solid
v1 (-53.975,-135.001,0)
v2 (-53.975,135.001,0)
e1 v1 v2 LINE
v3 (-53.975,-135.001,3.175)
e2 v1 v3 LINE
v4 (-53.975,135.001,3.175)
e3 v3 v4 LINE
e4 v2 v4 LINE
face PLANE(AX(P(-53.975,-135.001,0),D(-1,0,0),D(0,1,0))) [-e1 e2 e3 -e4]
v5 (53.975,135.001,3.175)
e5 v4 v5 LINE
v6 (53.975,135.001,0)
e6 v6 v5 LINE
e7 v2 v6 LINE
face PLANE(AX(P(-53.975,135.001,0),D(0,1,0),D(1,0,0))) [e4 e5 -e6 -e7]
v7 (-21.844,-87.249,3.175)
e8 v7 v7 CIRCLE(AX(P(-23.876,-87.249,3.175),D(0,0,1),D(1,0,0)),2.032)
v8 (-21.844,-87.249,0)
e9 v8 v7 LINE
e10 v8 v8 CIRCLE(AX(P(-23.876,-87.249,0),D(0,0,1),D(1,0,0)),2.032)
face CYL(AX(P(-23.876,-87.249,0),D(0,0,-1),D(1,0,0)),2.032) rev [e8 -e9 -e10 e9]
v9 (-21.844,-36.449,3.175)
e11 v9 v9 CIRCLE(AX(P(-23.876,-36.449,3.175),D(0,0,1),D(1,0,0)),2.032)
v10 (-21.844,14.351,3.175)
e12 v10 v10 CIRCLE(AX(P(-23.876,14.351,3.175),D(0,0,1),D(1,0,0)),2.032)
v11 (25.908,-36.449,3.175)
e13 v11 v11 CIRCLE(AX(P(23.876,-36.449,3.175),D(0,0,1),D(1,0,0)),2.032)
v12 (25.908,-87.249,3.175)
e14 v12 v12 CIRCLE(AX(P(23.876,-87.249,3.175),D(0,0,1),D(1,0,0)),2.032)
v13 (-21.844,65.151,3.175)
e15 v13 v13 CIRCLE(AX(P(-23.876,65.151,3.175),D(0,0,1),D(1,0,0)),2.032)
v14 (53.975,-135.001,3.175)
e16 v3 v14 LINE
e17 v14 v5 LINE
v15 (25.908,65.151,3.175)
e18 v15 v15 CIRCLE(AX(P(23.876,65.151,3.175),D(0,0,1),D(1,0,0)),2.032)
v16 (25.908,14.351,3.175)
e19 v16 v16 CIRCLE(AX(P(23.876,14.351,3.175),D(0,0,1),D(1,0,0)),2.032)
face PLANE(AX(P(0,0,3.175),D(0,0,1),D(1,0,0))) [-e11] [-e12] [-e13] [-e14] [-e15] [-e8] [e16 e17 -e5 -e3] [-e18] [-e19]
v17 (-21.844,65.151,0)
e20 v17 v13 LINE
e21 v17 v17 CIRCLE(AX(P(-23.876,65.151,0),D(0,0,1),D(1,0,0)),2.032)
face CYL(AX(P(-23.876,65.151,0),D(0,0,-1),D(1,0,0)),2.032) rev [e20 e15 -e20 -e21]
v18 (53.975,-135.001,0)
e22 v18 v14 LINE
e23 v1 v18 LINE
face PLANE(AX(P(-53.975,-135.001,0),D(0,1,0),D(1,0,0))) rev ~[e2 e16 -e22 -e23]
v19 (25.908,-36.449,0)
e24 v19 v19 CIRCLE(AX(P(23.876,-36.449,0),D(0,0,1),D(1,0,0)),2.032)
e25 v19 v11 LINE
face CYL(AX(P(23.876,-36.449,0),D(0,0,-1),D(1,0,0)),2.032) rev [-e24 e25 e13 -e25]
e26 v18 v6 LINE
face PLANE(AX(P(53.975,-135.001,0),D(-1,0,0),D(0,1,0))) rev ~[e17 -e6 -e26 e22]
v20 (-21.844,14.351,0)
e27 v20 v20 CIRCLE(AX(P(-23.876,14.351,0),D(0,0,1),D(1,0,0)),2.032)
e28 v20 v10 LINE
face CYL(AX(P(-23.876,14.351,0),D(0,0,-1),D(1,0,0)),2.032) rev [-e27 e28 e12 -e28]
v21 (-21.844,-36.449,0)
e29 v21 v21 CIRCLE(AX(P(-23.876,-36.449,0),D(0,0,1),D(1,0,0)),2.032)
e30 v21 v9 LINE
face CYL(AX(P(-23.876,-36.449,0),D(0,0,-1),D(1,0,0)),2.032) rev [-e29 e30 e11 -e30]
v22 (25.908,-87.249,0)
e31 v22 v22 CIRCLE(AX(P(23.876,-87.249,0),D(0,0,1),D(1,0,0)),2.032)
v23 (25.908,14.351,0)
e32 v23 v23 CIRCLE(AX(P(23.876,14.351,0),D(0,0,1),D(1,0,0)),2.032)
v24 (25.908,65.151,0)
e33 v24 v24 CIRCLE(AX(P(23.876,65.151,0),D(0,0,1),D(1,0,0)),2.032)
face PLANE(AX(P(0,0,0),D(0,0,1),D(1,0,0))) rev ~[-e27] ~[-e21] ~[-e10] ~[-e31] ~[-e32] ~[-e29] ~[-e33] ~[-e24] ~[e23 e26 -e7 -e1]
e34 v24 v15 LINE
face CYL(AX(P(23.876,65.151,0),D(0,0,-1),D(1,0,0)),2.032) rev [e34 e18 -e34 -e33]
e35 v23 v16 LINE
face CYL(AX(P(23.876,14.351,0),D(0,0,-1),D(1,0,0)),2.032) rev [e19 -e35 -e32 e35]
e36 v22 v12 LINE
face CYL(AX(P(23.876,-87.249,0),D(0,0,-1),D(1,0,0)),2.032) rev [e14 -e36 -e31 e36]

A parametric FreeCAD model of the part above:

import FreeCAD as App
import Part
import Sketcher
from FreeCAD import Vector
Q = App.Units.Quantity


def add_polygon(sketch, points):
    """Adds a closed chain of lines whose ends are joined by coincident constraints."""
    first, n = sketch.GeometryCount, len(points)
    for a, b in zip(points, points[1:] + points[:1]):
        sketch.addGeometry(Part.LineSegment(App.Vector(*a, 0), App.Vector(*b, 0)), False)
    for i in range(n):
        sketch.addConstraint(Sketcher.Constraint("Coincident", first + i, 2, first + (i + 1) % n, 1))

doc = App.newDocument("Part")
body = doc.addObject("PartDesign::Body", "Body")

sketch1 = body.newObject("Sketcher::SketchObject", "Sketch")
sketch1.AttachmentSupport = (doc.getObject("XY_Plane"), [""])
sketch1.MapMode = "FlatFace"
add_polygon(sketch1, [(-54, 135), (-54, -135), (54, -135), (54, 135)])
sketch1.addGeometry(Part.Circle(Vector(-23.9, -87.2, 0), Vector(0, 0, 1), 2), False)
sketch1.addGeometry(Part.Circle(Vector(-23.9, -36.4, 0), Vector(0, 0, 1), 2), False)
sketch1.addGeometry(Part.Circle(Vector(23.9, -87.2, 0), Vector(0, 0, 1), 2), False)
sketch1.addGeometry(Part.Circle(Vector(23.9, -36.4, 0), Vector(0, 0, 1), 2), False)
sketch1.addGeometry(Part.Circle(Vector(-23.9, 14.4, 0), Vector(0, 0, 1), 2), False)
sketch1.addGeometry(Part.Circle(Vector(-23.9, 65.2, 0), Vector(0, 0, 1), 2), False)
sketch1.addGeometry(Part.Circle(Vector(23.9, 14.4, 0), Vector(0, 0, 1), 2), False)
sketch1.addGeometry(Part.Circle(Vector(23.9, 65.2, 0), Vector(0, 0, 1), 2), False)
sketch1.addConstraint(Sketcher.Constraint("Vertical", 0))
sketch1.addConstraint(Sketcher.Constraint("Horizontal", 1))
sketch1.addConstraint(Sketcher.Constraint("Vertical", 2))
sketch1.addConstraint(Sketcher.Constraint("Horizontal", 3))
sketch1.addConstraint(Sketcher.Constraint("Equal", 4, 5))
sketch1.addConstraint(Sketcher.Constraint("Equal", 5, 6))
sketch1.addConstraint(Sketcher.Constraint("Equal", 6, 7))
sketch1.addConstraint(Sketcher.Constraint("Equal", 7, 8))
sketch1.addConstraint(Sketcher.Constraint("Equal", 8, 9))
sketch1.addConstraint(Sketcher.Constraint("Equal", 9, 10))
sketch1.addConstraint(Sketcher.Constraint("Equal", 10, 11))
sketch1.addConstraint(Sketcher.Constraint("Symmetric", 0, 2, 2, 2, -1, 1))
sketch1.addConstraint(Sketcher.Constraint("Symmetric", 4, 3, 6, 3, -2))
sketch1.addConstraint(Sketcher.Constraint("Symmetric", 5, 3, 7, 3, -2))
sketch1.addConstraint(Sketcher.Constraint("Symmetric", 8, 3, 10, 3, -2))
sketch1.addConstraint(Sketcher.Constraint("Symmetric", 9, 3, 11, 3, -2))
sketch1.addConstraint(Sketcher.Constraint("Vertical", 4, 3, 5, 3))
sketch1.addConstraint(Sketcher.Constraint("Vertical", 5, 3, 8, 3))
sketch1.addConstraint(Sketcher.Constraint("Vertical", 8, 3, 9, 3))
sketch1.addConstraint(Sketcher.Constraint("Diameter", 4, Q("0.16 in")))
sketch1.addConstraint(Sketcher.Constraint("DistanceY", 4, 3, 5, 3, Q("2 in")))
sketch1.addConstraint(Sketcher.Constraint("DistanceY", 5, 3, 8, 3, Q("2 in")))
sketch1.addConstraint(Sketcher.Constraint("DistanceY", 8, 3, 9, 3, Q("2 in")))
sketch1.addConstraint(Sketcher.Constraint("DistanceX", 1, 1, 1, 2, Q("4.25 in")))
sketch1.addConstraint(Sketcher.Constraint("DistanceY", 0, 2, 0, 1, Q("10.63 in")))
sketch1.addConstraint(Sketcher.Constraint("DistanceX", 4, 3, -1, 1, Q("0.94 in")))
sketch1.addConstraint(Sketcher.Constraint("DistanceY", 0, 2, 4, 3, Q("1.88 in")))
pad1 = body.newObject("PartDesign::Pad", "Pad")
pad1.Profile = sketch1
pad1.Length = Q("0.125 in")

doc.recompute()
